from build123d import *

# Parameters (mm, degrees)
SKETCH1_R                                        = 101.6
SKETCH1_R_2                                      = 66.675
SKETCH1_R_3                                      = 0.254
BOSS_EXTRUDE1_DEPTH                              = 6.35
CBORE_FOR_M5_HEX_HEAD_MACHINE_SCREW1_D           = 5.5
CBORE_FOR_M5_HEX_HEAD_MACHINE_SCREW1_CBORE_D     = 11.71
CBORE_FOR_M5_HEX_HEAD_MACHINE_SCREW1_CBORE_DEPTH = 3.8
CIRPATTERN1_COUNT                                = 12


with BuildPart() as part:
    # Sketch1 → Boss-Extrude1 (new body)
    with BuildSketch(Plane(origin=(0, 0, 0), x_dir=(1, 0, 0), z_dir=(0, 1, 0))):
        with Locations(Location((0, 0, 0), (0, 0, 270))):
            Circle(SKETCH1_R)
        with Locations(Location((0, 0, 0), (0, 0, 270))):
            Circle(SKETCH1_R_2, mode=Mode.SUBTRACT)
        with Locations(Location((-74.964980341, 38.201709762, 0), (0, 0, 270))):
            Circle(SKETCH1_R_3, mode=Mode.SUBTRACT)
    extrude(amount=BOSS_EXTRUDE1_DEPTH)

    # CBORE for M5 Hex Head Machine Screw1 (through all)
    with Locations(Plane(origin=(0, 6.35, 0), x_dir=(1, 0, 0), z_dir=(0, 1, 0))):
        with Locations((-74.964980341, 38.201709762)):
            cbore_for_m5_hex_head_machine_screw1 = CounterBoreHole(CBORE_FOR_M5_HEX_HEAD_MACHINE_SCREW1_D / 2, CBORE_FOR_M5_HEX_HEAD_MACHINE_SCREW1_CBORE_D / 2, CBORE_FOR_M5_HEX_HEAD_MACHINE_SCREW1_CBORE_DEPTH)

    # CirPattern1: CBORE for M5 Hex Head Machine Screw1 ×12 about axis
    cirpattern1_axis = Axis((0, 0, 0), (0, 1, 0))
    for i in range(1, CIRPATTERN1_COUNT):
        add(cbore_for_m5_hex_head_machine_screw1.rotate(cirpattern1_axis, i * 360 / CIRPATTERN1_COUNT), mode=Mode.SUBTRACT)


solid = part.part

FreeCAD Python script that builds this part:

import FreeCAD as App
import Part
import Sketcher

V = App.Vector
Q = App.Units.Quantity

doc = App.newDocument("Part")
body = doc.addObject("PartDesign::Body", "Body")

# Sketch on XZ plane
sketch1 = doc.addObject("Sketcher::SketchObject", "Sketch")
body.addObject(sketch1)
sketch1.AttachmentSupport = (doc.XZ_Plane, [""])
sketch1.MapMode = "FlatFace"
sketch1.addGeometry(Part.Circle(V(0, 0, 0), V(0, 0, 1), 101.6), False)
sketch1.addGeometry(Part.Circle(V(-74.96498, -38.20171, 0), V(0, 0, 1), 0.254), False)
sketch1.addGeometry(Part.Circle(V(0, 0, 0), V(0, 0, 1), 66.675), False)
sketch1.addConstraint(Sketcher.Constraint("Coincident", 0, 3, -1, 1))
sketch1.addConstraint(Sketcher.Constraint("Coincident", 2, 3, -1, 1))
sketch1.addConstraint(Sketcher.Constraint("Diameter", 0, Q("8 in")))
sketch1.addConstraint(Sketcher.Constraint("Diameter", 1, Q("0.02 in")))
sketch1.addConstraint(Sketcher.Constraint("Diameter", 2, Q("5.25 in")))
sketch1.addConstraint(Sketcher.Constraint("DistanceX", 1, 3, -1, 1, 74.96498))
sketch1.addConstraint(Sketcher.Constraint("DistanceY", 1, 3, -1, 1, 38.20171))
pad1 = doc.addObject("PartDesign::Pad", "Pad")
body.addObject(pad1)
pad1.Profile = sketch1
pad1.Length = Q("0.25 in")
pad1.Reversed = True

# Sketch on XZ plane
sketch2 = doc.addObject("Sketcher::SketchObject", "Sketch001")
body.addObject(sketch2)
sketch2.AttachmentSupport = (doc.XZ_Plane, [""])
sketch2.MapMode = "FlatFace"
sketch2.AttachmentOffset = App.Placement(V(0, 0, -0.25 * 25.4), App.Rotation())
sketch2.addGeometry(Part.Circle(V(-74.96498, -38.20171, 0), V(0, 0, 1), 2.75), False)
sketch2.addConstraint(Sketcher.Constraint("Diameter", 0, 5.5))
sketch2.addConstraint(Sketcher.Constraint("DistanceX", 0, 3, -1, 1, 74.96498))
sketch2.addConstraint(Sketcher.Constraint("DistanceY", 0, 3, -1, 1, 38.20171))
doc.recompute()
hole = doc.addObject("PartDesign::Hole", "Hole")
body.addObject(hole)
hole.Profile = sketch2
hole.ThreadType = "None"
hole.Diameter = 5.5
hole.DepthType = "ThroughAll"
hole.HoleCutType = "Counterbore"
hole.HoleCutDiameter = 11.71
hole.HoleCutDepth = 3.8
hole.Reversed = True
doc.recompute()

polarpattern = doc.addObject("PartDesign::PolarPattern", "PolarPattern")
body.addObject(polarpattern)
polarpattern.Originals = [hole]
polarpattern.Axis = (doc.Y_Axis, [""])
polarpattern.Angle = 360
polarpattern.Occurrences = 12
body.Tip = polarpattern

doc.recompute()
